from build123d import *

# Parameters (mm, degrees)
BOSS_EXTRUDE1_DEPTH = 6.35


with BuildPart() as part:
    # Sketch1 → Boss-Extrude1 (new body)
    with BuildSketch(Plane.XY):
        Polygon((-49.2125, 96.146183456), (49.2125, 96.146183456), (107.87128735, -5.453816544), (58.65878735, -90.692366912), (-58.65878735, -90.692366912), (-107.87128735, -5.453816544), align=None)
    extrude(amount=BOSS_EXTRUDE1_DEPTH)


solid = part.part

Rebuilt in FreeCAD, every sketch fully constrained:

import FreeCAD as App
import Part
import Sketcher
from FreeCAD import Vector
Q = App.Units.Quantity


def add_polygon(sketch, points):
    """Adds a closed chain of lines whose ends are joined by coincident constraints."""
    first, n = sketch.GeometryCount, len(points)
    for a, b in zip(points, points[1:] + points[:1]):
        sketch.addGeometry(Part.LineSegment(App.Vector(*a, 0), App.Vector(*b, 0)), False)
    for i in range(n):
        sketch.addConstraint(Sketcher.Constraint("Coincident", first + i, 2, first + (i + 1) % n, 1))

doc = App.newDocument("Part")
params = doc.addObject("Spreadsheet::Sheet", "Params")
for row, (alias, value) in enumerate([
    ("sketch1_width", "3.875 in"),
    ("sketch1_length", "3.875 in"),
    ("pad1_length", "0.25 in"),
], start=1):
    params.set(f"A{row}", alias)
    params.set(f"B{row}", "=" + value)
    params.setAlias(f"B{row}", alias)

body = doc.addObject("PartDesign::Body", "Body")

# Sketch on XY plane
sketch1 = body.newObject("Sketcher::SketchObject", "Sketch")
sketch1.AttachmentSupport = (doc.getObject("XY_Plane"), [""])
sketch1.MapMode = "FlatFace"
add_polygon(sketch1, [(49.2125, 96.146183), (-49.2125, 96.146183), (-107.871287, -5.453817), (-58.658787, -90.692367), (58.658787, -90.692367), (107.871287, -5.453817)])  # lines 0-5
sketch1.addConstraint(Sketcher.Constraint("Horizontal", 0))
sketch1.addConstraint(Sketcher.Constraint("Horizontal", 3))
sketch1.addConstraint(Sketcher.Constraint("Symmetric", 1, 2, 4, 2, -2))
sketch1.addConstraint(Sketcher.Constraint("Parallel", 1, 4))
sketch1.addConstraint(Sketcher.Constraint("Parallel", 2, 5))
sketch1.addConstraint(Sketcher.Constraint("Equal", 2, 4))
sketch1.addConstraint(Sketcher.Constraint("Angle", 1, Q("-120 deg")))
sketch1.addConstraint(Sketcher.Constraint("DistanceY", 1, 2, 0, 2, Q("4 in")))
sketch1.addConstraint(Sketcher.Constraint("DistanceX", 0, 2, 0, 1, Q("3.875 in")))
sketch1.addConstraint(Sketcher.Constraint("Distance", 2, Q("3.875 in")))
sketch1.addConstraint(Sketcher.Constraint("DistanceY", -1, 1, 0, 2, Q("96.146183 mm")))
sketch1.setExpression("Constraints[14]", "Params.sketch1_width")
sketch1.setExpression("Constraints[15]", "Params.sketch1_length")
pad1 = body.newObject("PartDesign::Pad", "Pad")
pad1.Profile = sketch1
pad1.setExpression("Length", "Params.pad1_length")

doc.recompute()
